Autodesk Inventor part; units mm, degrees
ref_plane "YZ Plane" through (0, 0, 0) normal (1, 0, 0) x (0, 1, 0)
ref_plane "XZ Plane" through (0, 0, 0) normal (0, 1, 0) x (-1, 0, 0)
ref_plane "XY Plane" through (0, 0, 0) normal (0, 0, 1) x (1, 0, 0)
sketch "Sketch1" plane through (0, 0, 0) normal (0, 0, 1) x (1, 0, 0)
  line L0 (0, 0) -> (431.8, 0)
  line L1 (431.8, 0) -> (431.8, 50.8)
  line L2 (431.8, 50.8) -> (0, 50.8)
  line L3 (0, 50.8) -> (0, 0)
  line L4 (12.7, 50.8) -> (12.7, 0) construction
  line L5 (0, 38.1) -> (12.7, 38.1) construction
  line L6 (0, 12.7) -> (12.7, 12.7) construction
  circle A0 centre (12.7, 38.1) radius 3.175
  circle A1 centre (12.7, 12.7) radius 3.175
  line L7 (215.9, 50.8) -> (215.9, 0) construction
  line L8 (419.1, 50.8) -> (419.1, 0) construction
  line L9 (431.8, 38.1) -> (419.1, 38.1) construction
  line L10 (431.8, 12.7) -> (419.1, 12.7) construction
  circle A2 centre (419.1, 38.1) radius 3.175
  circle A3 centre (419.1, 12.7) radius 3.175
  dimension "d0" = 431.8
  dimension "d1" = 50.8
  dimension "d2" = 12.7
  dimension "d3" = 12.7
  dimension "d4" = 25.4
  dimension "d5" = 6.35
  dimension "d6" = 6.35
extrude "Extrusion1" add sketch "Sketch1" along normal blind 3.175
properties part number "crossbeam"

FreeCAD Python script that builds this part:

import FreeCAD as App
import Part
import Sketcher

V = App.Vector
Q = App.Units.Quantity

doc = App.newDocument("Part")
body = doc.addObject("PartDesign::Body", "Body")

# Sketch on XY plane
sketch1 = body.newObject("Sketcher::SketchObject", "Sketch")
sketch1.AttachmentSupport = (doc.getObject("XY_Plane"), [""])
sketch1.MapMode = "FlatFace"
sketch1.addGeometry([
    Part.LineSegment(V(0, 50.8, 0), V(0, 0, 0)),  # 0
    Part.LineSegment(V(0, 0, 0), V(431.8, 0, 0)),  # 1
    Part.LineSegment(V(431.8, 0, 0), V(431.8, 50.8, 0)),  # 2
    Part.LineSegment(V(431.8, 50.8, 0), V(0, 50.8, 0)),  # 3
    Part.Circle(V(12.7, 12.7, 0), V(0, 0, 1), 3.2),  # 4
    Part.Circle(V(419.1, 12.7, 0), V(0, 0, 1), 3.2),  # 5
    Part.Circle(V(12.7, 38.1, 0), V(0, 0, 1), 3.2),  # 6
    Part.Circle(V(419.1, 38.1, 0), V(0, 0, 1), 3.2),  # 7
], False)
sketch1.addConstraint([
    Sketcher.Constraint("Coincident", 0, 2, 1, 1),
    Sketcher.Constraint("Coincident", 1, 2, 2, 1),
    Sketcher.Constraint("Coincident", 2, 2, 3, 1),
    Sketcher.Constraint("Coincident", 3, 2, 0, 1),
    Sketcher.Constraint("Vertical", 0),
    Sketcher.Constraint("Horizontal", 1),
    Sketcher.Constraint("Vertical", 2),
    Sketcher.Constraint("Horizontal", 3),
    Sketcher.Constraint("Coincident", 0, 2, -1, 1),
    Sketcher.Constraint("Equal", 4, 5),
    Sketcher.Constraint("Equal", 5, 6),
    Sketcher.Constraint("Equal", 6, 7),
    Sketcher.Constraint("Horizontal", 4, 3, 5, 3),
    Sketcher.Constraint("Horizontal", 6, 3, 7, 3),
    Sketcher.Constraint("Vertical", 4, 3, 6, 3),
    Sketcher.Constraint("Vertical", 5, 3, 7, 3),
    Sketcher.Constraint("Diameter", 4, Q("0.25 in")),
    Sketcher.Constraint("DistanceX", 1, 1, 1, 2, Q("17 in")),
    Sketcher.Constraint("DistanceY", 0, 2, 0, 1, Q("2 in")),
    Sketcher.Constraint("DistanceY", 4, 3, 6, 3, Q("1 in")),
    Sketcher.Constraint("DistanceX", -1, 1, 4, 3, Q("0.5 in")),
    Sketcher.Constraint("DistanceY", -1, 1, 4, 3, Q("0.5 in")),
    Sketcher.Constraint("DistanceX", 5, 3, 1, 2, Q("0.5 in")),
])
pad1 = body.newObject("PartDesign::Pad", "Pad")
pad1.Profile = sketch1
pad1.Length = Q("0.125 in")

doc.recompute()
